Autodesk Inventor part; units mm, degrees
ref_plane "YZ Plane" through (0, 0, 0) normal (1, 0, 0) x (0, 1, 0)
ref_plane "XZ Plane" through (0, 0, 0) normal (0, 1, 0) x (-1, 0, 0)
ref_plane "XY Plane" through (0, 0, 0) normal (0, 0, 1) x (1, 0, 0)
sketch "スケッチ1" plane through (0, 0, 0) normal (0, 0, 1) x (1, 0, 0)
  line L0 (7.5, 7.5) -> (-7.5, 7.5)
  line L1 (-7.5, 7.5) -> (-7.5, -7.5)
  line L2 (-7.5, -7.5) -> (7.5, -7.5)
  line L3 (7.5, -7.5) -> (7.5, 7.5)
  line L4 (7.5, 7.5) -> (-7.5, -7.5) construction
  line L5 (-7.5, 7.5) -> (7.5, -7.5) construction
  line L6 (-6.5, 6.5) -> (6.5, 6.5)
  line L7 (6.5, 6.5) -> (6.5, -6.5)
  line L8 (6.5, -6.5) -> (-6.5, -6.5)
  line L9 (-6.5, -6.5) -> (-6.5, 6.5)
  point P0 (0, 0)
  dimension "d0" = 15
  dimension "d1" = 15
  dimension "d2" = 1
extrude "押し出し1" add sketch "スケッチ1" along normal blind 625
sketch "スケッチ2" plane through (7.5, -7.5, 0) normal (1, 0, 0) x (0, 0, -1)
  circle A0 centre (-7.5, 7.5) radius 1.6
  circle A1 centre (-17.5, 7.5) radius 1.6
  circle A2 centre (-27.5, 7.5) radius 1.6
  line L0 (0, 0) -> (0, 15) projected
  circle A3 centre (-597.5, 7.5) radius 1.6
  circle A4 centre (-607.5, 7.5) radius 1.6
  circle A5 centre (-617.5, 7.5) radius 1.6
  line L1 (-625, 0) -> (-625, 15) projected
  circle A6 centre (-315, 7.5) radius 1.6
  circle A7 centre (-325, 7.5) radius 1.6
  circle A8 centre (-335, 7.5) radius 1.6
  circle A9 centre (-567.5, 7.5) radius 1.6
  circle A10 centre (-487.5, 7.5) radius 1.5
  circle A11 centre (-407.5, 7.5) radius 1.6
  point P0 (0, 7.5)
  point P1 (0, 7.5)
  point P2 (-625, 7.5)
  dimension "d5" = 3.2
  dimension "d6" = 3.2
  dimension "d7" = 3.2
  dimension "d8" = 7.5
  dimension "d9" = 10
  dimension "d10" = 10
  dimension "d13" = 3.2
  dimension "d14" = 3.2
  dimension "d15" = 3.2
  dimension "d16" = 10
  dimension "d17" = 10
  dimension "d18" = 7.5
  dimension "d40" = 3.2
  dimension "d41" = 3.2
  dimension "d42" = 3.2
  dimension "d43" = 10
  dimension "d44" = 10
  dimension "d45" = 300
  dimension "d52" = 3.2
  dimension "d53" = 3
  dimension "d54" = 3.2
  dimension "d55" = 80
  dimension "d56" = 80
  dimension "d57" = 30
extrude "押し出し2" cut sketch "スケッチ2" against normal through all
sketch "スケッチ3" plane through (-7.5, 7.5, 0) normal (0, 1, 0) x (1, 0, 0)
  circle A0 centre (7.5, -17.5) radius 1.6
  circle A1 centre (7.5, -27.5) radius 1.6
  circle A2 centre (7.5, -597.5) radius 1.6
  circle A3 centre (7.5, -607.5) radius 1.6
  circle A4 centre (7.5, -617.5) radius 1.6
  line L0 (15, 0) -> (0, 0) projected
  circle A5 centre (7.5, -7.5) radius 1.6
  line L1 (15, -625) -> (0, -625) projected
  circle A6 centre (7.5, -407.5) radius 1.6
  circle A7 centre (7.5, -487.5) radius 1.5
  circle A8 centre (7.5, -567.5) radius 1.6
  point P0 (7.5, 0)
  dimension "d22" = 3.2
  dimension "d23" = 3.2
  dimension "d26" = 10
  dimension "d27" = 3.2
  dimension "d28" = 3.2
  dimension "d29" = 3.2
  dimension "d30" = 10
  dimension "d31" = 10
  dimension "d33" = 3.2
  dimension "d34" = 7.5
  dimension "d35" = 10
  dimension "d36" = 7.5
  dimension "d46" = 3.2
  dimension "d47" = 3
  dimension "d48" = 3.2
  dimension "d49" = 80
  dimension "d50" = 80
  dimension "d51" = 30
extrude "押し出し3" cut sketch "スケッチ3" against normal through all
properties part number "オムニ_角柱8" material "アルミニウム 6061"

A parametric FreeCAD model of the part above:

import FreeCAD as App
import Part
import Sketcher

V = App.Vector

doc = App.newDocument("Part")
params = doc.addObject("Spreadsheet::Sheet", "Params")
for row, (alias, value) in enumerate([
    ("sketch1_width", "15 mm"),
    ("pad1_length", "625 mm"),
    ("sketch2_diameter", "3 mm"),
    ("sketch2_diameter2", "3.2 mm"),
    ("sketch3_diameter", "3 mm"),
    ("sketch3_diameter2", "3.2 mm"),
], start=1):
    params.set(f"A{row}", alias)
    params.set(f"B{row}", "=" + value)
    params.setAlias(f"B{row}", alias)

body = doc.addObject("PartDesign::Body", "Body")

# Sketch on XY plane
sketch1 = body.newObject("Sketcher::SketchObject", "Sketch")
sketch1.AttachmentSupport = (doc.getObject("XY_Plane"), [""])
sketch1.MapMode = "FlatFace"
sketch1.addGeometry(Part.LineSegment(V(8, -8, 0), V(8, 8, 0)), False)
sketch1.addGeometry(Part.LineSegment(V(8, 8, 0), V(-8, 8, 0)), False)
sketch1.addGeometry(Part.LineSegment(V(-8, 8, 0), V(-8, -8, 0)), False)
sketch1.addGeometry(Part.LineSegment(V(-8, -8, 0), V(8, -8, 0)), False)
sketch1.addGeometry(Part.LineSegment(V(-6, -6, 0), V(-6, 6, 0)), False)
sketch1.addGeometry(Part.LineSegment(V(-6, 6, 0), V(6, 6, 0)), False)
sketch1.addGeometry(Part.LineSegment(V(6, 6, 0), V(6, -6, 0)), False)
sketch1.addGeometry(Part.LineSegment(V(6, -6, 0), V(-6, -6, 0)), False)
sketch1.addConstraint(Sketcher.Constraint("Coincident", 0, 2, 1, 1))
sketch1.addConstraint(Sketcher.Constraint("Coincident", 1, 2, 2, 1))
sketch1.addConstraint(Sketcher.Constraint("Coincident", 2, 2, 3, 1))
sketch1.addConstraint(Sketcher.Constraint("Coincident", 3, 2, 0, 1))
sketch1.addConstraint(Sketcher.Constraint("Coincident", 4, 2, 5, 1))
sketch1.addConstraint(Sketcher.Constraint("Coincident", 5, 2, 6, 1))
sketch1.addConstraint(Sketcher.Constraint("Coincident", 6, 2, 7, 1))
sketch1.addConstraint(Sketcher.Constraint("Coincident", 7, 2, 4, 1))
sketch1.addConstraint(Sketcher.Constraint("Vertical", 0))
sketch1.addConstraint(Sketcher.Constraint("Horizontal", 1))
sketch1.addConstraint(Sketcher.Constraint("Vertical", 2))
sketch1.addConstraint(Sketcher.Constraint("Horizontal", 3))
sketch1.addConstraint(Sketcher.Constraint("Vertical", 4))
sketch1.addConstraint(Sketcher.Constraint("Horizontal", 5))
sketch1.addConstraint(Sketcher.Constraint("Vertical", 6))
sketch1.addConstraint(Sketcher.Constraint("Horizontal", 7))
sketch1.addConstraint(Sketcher.Constraint("Symmetric", 0, 2, 2, 2, -1, 1))
sketch1.addConstraint(Sketcher.Constraint("Symmetric", 4, 2, 6, 2, -1, 1))
sketch1.addConstraint(Sketcher.Constraint("Equal", 3, 0))
sketch1.addConstraint(Sketcher.Constraint("Equal", 7, 4))
sketch1.addConstraint(Sketcher.Constraint("DistanceX", 1, 2, 1, 1, 15.0))
sketch1.addConstraint(Sketcher.Constraint("DistanceX", 1, 2, 4, 2, 1.0))
sketch1.setExpression("Constraints[20]", "Params.sketch1_width")
pad1 = body.newObject("PartDesign::Pad", "Pad")
pad1.Profile = sketch1
pad1.setExpression("Length", "Params.pad1_length")

# Sketch on YZ plane
sketch2 = body.newObject("Sketcher::SketchObject", "Sketch001")
sketch2.AttachmentSupport = (doc.getObject("YZ_Plane"), [""])
sketch2.MapMode = "FlatFace"
sketch2.AttachmentOffset = App.Placement(V(0, 0, 7.5), App.Rotation())
sketch2.addGeometry(Part.Circle(V(0, 7.5, 0), V(0, 0, 1), 1.6), False)
sketch2.addGeometry(Part.Circle(V(0, 17.5, 0), V(0, 0, 1), 1.6), False)
sketch2.addGeometry(Part.Circle(V(0, 27.5, 0), V(0, 0, 1), 1.6), False)
sketch2.addGeometry(Part.Circle(V(0, 597.5, 0), V(0, 0, 1), 1.6), False)
sketch2.addGeometry(Part.Circle(V(0, 607.5, 0), V(0, 0, 1), 1.6), False)
sketch2.addGeometry(Part.Circle(V(0, 617.5, 0), V(0, 0, 1), 1.6), False)
sketch2.addGeometry(Part.Circle(V(0, 315, 0), V(0, 0, 1), 1.6), False)
sketch2.addGeometry(Part.Circle(V(0, 325, 0), V(0, 0, 1), 1.6), False)
sketch2.addGeometry(Part.Circle(V(0, 335, 0), V(0, 0, 1), 1.6), False)
sketch2.addGeometry(Part.Circle(V(0, 567.5, 0), V(0, 0, 1), 1.6), False)
sketch2.addGeometry(Part.Circle(V(0, 487.5, 0), V(0, 0, 1), 1.5), False)
sketch2.addGeometry(Part.Circle(V(0, 407.5, 0), V(0, 0, 1), 1.6), False)
sketch2.addConstraint(Sketcher.Constraint("Equal", 0, 1))
sketch2.addConstraint(Sketcher.Constraint("Equal", 1, 2))
sketch2.addConstraint(Sketcher.Constraint("Equal", 2, 3))
sketch2.addConstraint(Sketcher.Constraint("Equal", 3, 4))
sketch2.addConstraint(Sketcher.Constraint("Equal", 4, 5))
sketch2.addConstraint(Sketcher.Constraint("Equal", 5, 6))
sketch2.addConstraint(Sketcher.Constraint("Equal", 6, 7))
sketch2.addConstraint(Sketcher.Constraint("Equal", 7, 8))
sketch2.addConstraint(Sketcher.Constraint("Equal", 8, 9))
sketch2.addConstraint(Sketcher.Constraint("Equal", 9, 11))
sketch2.addConstraint(Sketcher.Constraint("PointOnObject", 0, 3, -2))
sketch2.addConstraint(Sketcher.Constraint("PointOnObject", 1, 3, -2))
sketch2.addConstraint(Sketcher.Constraint("PointOnObject", 2, 3, -2))
sketch2.addConstraint(Sketcher.Constraint("PointOnObject", 3, 3, -2))
sketch2.addConstraint(Sketcher.Constraint("PointOnObject", 4, 3, -2))
sketch2.addConstraint(Sketcher.Constraint("PointOnObject", 5, 3, -2))
sketch2.addConstraint(Sketcher.Constraint("PointOnObject", 6, 3, -2))
sketch2.addConstraint(Sketcher.Constraint("PointOnObject", 7, 3, -2))
sketch2.addConstraint(Sketcher.Constraint("PointOnObject", 8, 3, -2))
sketch2.addConstraint(Sketcher.Constraint("PointOnObject", 9, 3, -2))
sketch2.addConstraint(Sketcher.Constraint("PointOnObject", 10, 3, -2))
sketch2.addConstraint(Sketcher.Constraint("PointOnObject", 11, 3, -2))
sketch2.addConstraint(Sketcher.Constraint("Diameter", 10, 3.0))
sketch2.addConstraint(Sketcher.Constraint("Diameter", 0, 3.2))
sketch2.addConstraint(Sketcher.Constraint("DistanceY", 0, 3, 1, 3, 10.0))
sketch2.addConstraint(Sketcher.Constraint("DistanceY", 1, 3, 2, 3, 10.0))
sketch2.addConstraint(Sketcher.Constraint("DistanceY", 3, 3, 4, 3, 10.0))
sketch2.addConstraint(Sketcher.Constraint("DistanceY", 4, 3, 5, 3, 10.0))
sketch2.addConstraint(Sketcher.Constraint("DistanceY", 6, 3, 7, 3, 10.0))
sketch2.addConstraint(Sketcher.Constraint("DistanceY", 7, 3, 8, 3, 10.0))
sketch2.addConstraint(Sketcher.Constraint("DistanceY", 9, 3, 3, 3, 30.0))
sketch2.addConstraint(Sketcher.Constraint("DistanceY", 10, 3, 9, 3, 80.0))
sketch2.addConstraint(Sketcher.Constraint("DistanceY", 11, 3, 10, 3, 80.0))
sketch2.addConstraint(Sketcher.Constraint("DistanceY", -1, 1, 0, 3, 7.5))
sketch2.addConstraint(Sketcher.Constraint("DistanceY", -1, 1, 6, 3, 315.0))
sketch2.addConstraint(Sketcher.Constraint("DistanceY", 2, 3, 3, 3, 570.0))
sketch2.setExpression("Constraints[22]", "Params.sketch2_diameter")
sketch2.setExpression("Constraints[23]", "Params.sketch2_diameter2")
pocket1 = body.newObject("PartDesign::Pocket", "Pocket")
pocket1.Profile = sketch2
pocket1.Type = "ThroughAll"

# Sketch on XZ plane
sketch3 = body.newObject("Sketcher::SketchObject", "Sketch002")
sketch3.AttachmentSupport = (doc.getObject("XZ_Plane"), [""])
sketch3.MapMode = "FlatFace"
sketch3.AttachmentOffset = App.Placement(V(0, 0, -7.5), App.Rotation())
sketch3.addGeometry(Part.Circle(V(0, 17.5, 0), V(0, 0, 1), 1.6), False)
sketch3.addGeometry(Part.Circle(V(0, 27.5, 0), V(0, 0, 1), 1.6), False)
sketch3.addGeometry(Part.Circle(V(0, 597.5, 0), V(0, 0, 1), 1.6), False)
sketch3.addGeometry(Part.Circle(V(0, 607.5, 0), V(0, 0, 1), 1.6), False)
sketch3.addGeometry(Part.Circle(V(0, 617.5, 0), V(0, 0, 1), 1.6), False)
sketch3.addGeometry(Part.Circle(V(0, 7.5, 0), V(0, 0, 1), 1.6), False)
sketch3.addGeometry(Part.Circle(V(0, 407.5, 0), V(0, 0, 1), 1.6), False)
sketch3.addGeometry(Part.Circle(V(0, 487.5, 0), V(0, 0, 1), 1.5), False)
sketch3.addGeometry(Part.Circle(V(0, 567.5, 0), V(0, 0, 1), 1.6), False)
sketch3.addConstraint(Sketcher.Constraint("Equal", 0, 1))
sketch3.addConstraint(Sketcher.Constraint("Equal", 1, 2))
sketch3.addConstraint(Sketcher.Constraint("Equal", 2, 3))
sketch3.addConstraint(Sketcher.Constraint("Equal", 3, 4))
sketch3.addConstraint(Sketcher.Constraint("Equal", 4, 5))
sketch3.addConstraint(Sketcher.Constraint("Equal", 5, 6))
sketch3.addConstraint(Sketcher.Constraint("Equal", 6, 8))
sketch3.addConstraint(Sketcher.Constraint("PointOnObject", 0, 3, -2))
sketch3.addConstraint(Sketcher.Constraint("PointOnObject", 1, 3, -2))
sketch3.addConstraint(Sketcher.Constraint("PointOnObject", 2, 3, -2))
sketch3.addConstraint(Sketcher.Constraint("PointOnObject", 3, 3, -2))
sketch3.addConstraint(Sketcher.Constraint("PointOnObject", 4, 3, -2))
sketch3.addConstraint(Sketcher.Constraint("PointOnObject", 5, 3, -2))
sketch3.addConstraint(Sketcher.Constraint("PointOnObject", 6, 3, -2))
sketch3.addConstraint(Sketcher.Constraint("PointOnObject", 7, 3, -2))
sketch3.addConstraint(Sketcher.Constraint("PointOnObject", 8, 3, -2))
sketch3.addConstraint(Sketcher.Constraint("Diameter", 7, 3.0))
sketch3.addConstraint(Sketcher.Constraint("Diameter", 0, 3.2))
sketch3.addConstraint(Sketcher.Constraint("DistanceY", 0, 3, 1, 3, 10.0))
sketch3.addConstraint(Sketcher.Constraint("DistanceY", 2, 3, 3, 3, 10.0))
sketch3.addConstraint(Sketcher.Constraint("DistanceY", 3, 3, 4, 3, 10.0))
sketch3.addConstraint(Sketcher.Constraint("DistanceY", 5, 3, 0, 3, 10.0))
sketch3.addConstraint(Sketcher.Constraint("DistanceY", 6, 3, 7, 3, 80.0))
sketch3.addConstraint(Sketcher.Constraint("DistanceY", 8, 3, 2, 3, 30.0))
sketch3.addConstraint(Sketcher.Constraint("DistanceY", 7, 3, 8, 3, 80.0))
sketch3.addConstraint(Sketcher.Constraint("DistanceY", -1, 1, 5, 3, 7.5))
sketch3.addConstraint(Sketcher.Constraint("DistanceY", 1, 3, 2, 3, 570.0))
sketch3.setExpression("Constraints[16]", "Params.sketch3_diameter")
sketch3.setExpression("Constraints[17]", "Params.sketch3_diameter2")
pocket2 = body.newObject("PartDesign::Pocket", "Pocket001")
pocket2.Profile = sketch3
pocket2.Type = "ThroughAll"
pocket2.Reversed = True

doc.recompute()
